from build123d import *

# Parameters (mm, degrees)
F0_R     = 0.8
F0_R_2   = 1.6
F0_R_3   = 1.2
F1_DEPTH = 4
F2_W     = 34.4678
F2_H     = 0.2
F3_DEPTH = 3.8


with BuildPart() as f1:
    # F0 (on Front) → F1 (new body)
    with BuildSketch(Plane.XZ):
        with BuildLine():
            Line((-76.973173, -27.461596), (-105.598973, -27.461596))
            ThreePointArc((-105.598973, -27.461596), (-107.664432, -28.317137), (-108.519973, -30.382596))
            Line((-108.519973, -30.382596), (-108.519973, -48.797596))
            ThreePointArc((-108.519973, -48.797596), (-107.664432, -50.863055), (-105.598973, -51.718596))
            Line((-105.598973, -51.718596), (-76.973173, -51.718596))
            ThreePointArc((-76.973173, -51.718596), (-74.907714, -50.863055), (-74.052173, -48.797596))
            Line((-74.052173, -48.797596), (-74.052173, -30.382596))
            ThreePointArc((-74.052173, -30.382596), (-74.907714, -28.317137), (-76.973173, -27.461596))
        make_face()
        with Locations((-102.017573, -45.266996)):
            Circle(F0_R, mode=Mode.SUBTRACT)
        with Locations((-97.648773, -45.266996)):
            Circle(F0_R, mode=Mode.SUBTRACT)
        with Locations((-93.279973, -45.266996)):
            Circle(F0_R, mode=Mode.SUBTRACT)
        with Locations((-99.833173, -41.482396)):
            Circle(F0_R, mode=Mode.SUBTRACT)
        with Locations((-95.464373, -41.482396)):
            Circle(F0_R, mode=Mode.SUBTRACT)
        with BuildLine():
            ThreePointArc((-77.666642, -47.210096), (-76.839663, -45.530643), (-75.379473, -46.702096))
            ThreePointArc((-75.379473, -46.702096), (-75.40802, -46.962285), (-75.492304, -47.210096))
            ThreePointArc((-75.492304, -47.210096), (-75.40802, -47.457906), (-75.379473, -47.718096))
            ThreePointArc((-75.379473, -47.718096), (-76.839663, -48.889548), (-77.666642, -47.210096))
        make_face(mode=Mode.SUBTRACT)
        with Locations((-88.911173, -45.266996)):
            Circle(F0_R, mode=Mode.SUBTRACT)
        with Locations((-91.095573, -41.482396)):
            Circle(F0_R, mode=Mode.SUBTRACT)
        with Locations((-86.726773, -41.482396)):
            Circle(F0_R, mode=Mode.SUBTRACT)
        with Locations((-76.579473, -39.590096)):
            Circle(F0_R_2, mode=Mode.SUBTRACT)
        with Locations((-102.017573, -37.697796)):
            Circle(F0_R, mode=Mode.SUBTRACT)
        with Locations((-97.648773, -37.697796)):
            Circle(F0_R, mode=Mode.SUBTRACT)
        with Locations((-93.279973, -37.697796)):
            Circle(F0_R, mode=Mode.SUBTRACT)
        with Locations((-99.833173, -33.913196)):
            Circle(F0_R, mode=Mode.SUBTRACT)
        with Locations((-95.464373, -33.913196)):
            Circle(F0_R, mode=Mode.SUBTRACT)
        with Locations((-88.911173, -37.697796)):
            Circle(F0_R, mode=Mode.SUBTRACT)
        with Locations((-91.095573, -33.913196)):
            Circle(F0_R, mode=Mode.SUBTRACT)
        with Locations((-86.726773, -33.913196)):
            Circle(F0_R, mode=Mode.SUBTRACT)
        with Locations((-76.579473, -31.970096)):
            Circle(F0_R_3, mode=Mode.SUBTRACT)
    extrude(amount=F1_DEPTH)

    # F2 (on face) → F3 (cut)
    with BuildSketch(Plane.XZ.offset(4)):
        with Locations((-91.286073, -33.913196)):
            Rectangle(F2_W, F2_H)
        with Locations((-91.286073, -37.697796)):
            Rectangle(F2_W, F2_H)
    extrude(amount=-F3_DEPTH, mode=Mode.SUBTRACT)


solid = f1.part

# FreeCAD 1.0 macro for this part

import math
import FreeCAD as App
import Part
import Sketcher
Q = App.Units.Quantity


def add_polygon(sketch, points):
    """Adds a closed chain of lines whose ends are joined by coincident constraints."""
    first, n = sketch.GeometryCount, len(points)
    for a, b in zip(points, points[1:] + points[:1]):
        sketch.addGeometry(Part.LineSegment(App.Vector(*a, 0), App.Vector(*b, 0)), False)
    for i in range(n):
        sketch.addConstraint(Sketcher.Constraint("Coincident", first + i, 2, first + (i + 1) % n, 1))

doc = App.newDocument("Part")
params = doc.addObject("Spreadsheet::Sheet", "Params")
for row, (alias, value) in enumerate([
    ("sketch1_diameter", "1.6 mm"),
    ("sketch1_diameter2", "3.2 mm"),
    ("sketch1_diameter3", "2.4 mm"),
    ("pad1_length", "4 mm"),
    ("sketch2_height", "0.2 mm"),
    ("pocket1_length", "3.8 mm"),
], start=1):
    params.set(f"A{row}", alias)
    params.set(f"B{row}", "=" + value)
    params.setAlias(f"B{row}", alias)

body = doc.addObject("PartDesign::Body", "Body")

# Sketch on XZ plane
sketch1 = doc.addObject("Sketcher::SketchObject", "Sketch")
body.addObject(sketch1)
sketch1.AttachmentSupport = (doc.XZ_Plane, [""])
sketch1.MapMode = "FlatFace"
sketch1.addGeometry([
    Part.LineSegment(App.Vector(-76.973173, -27.461596, 0), App.Vector(-105.598973, -27.461596, 0)),  # 0
    Part.ArcOfCircle(Part.Circle(App.Vector(-105.598973, -30.382596, 0), App.Vector(0, 0, 1), 2.921), math.radians(89.999994), math.radians(180.000006)),  # 1
    Part.LineSegment(App.Vector(-108.519973, -30.382596, 0), App.Vector(-108.519973, -48.797596, 0)),  # 2
    Part.ArcOfCircle(Part.Circle(App.Vector(-105.598973, -48.797596, 0), App.Vector(0, 0, 1), 2.921), math.radians(179.999994), math.radians(270.000006)),  # 3
    Part.LineSegment(App.Vector(-105.598973, -51.718596, 0), App.Vector(-76.973173, -51.718596, 0)),  # 4
    Part.ArcOfCircle(Part.Circle(App.Vector(-76.973173, -48.797596, 0), App.Vector(0, 0, 1), 2.921), math.radians(-90.000006), math.radians(0.000006)),  # 5
    Part.LineSegment(App.Vector(-74.052173, -48.797596, 0), App.Vector(-74.052173, -30.382596, 0)),  # 6
    Part.ArcOfCircle(Part.Circle(App.Vector(-76.973173, -30.382596, 0), App.Vector(0, 0, 1), 2.921), math.radians(-0.000006), math.radians(90.000006)),  # 7
    Part.Circle(App.Vector(-102.017573, -45.266996, 0), App.Vector(0, 0, 1), 0.8),  # 8
    Part.Circle(App.Vector(-97.648773, -45.266996, 0), App.Vector(0, 0, 1), 0.8),  # 9
    Part.Circle(App.Vector(-93.279973, -45.266996, 0), App.Vector(0, 0, 1), 0.8),  # 10
    Part.Circle(App.Vector(-88.911173, -45.266996, 0), App.Vector(0, 0, 1), 0.8),  # 11
    Part.Circle(App.Vector(-99.833173, -41.482396, 0), App.Vector(0, 0, 1), 0.8),  # 12
    Part.Circle(App.Vector(-95.464373, -41.482396, 0), App.Vector(0, 0, 1), 0.8),  # 13
    Part.Circle(App.Vector(-91.095573, -41.482396, 0), App.Vector(0, 0, 1), 0.8),  # 14
    Part.ArcOfCircle(Part.Circle(App.Vector(-76.579473, -47.718095, 0), App.Vector(0, 0, 1), 1.2), math.radians(154.954814), math.radians(359.999974)),  # 15
    Part.ArcOfCircle(Part.Circle(App.Vector(-76.579473, -46.702096, 0), App.Vector(0, 0, 1), 1.2), math.radians(-0.000011), math.radians(205.045223)),  # 16
    Part.ArcOfCircle(Part.Circle(App.Vector(-76.579469, -46.702097, 0), App.Vector(0, 0, 1), 1.199996), math.radians(-25.045232), math.radians(0.000061)),  # 17
    Part.ArcOfCircle(Part.Circle(App.Vector(-76.57946, -47.718093, 0), App.Vector(0, 0, 1), 1.199987), math.radians(-0.000155), math.radians(25.045327)),  # 18
    Part.Circle(App.Vector(-86.726773, -41.482396, 0), App.Vector(0, 0, 1), 0.8),  # 19
    Part.Circle(App.Vector(-102.017573, -37.697796, 0), App.Vector(0, 0, 1), 0.8),  # 20
    Part.Circle(App.Vector(-97.648773, -37.697796, 0), App.Vector(0, 0, 1), 0.8),  # 21
    Part.Circle(App.Vector(-93.279973, -37.697796, 0), App.Vector(0, 0, 1), 0.8),  # 22
    Part.Circle(App.Vector(-88.911173, -37.697796, 0), App.Vector(0, 0, 1), 0.8),  # 23
    Part.Circle(App.Vector(-99.833173, -33.913196, 0), App.Vector(0, 0, 1), 0.8),  # 24
    Part.Circle(App.Vector(-95.464373, -33.913196, 0), App.Vector(0, 0, 1), 0.8),  # 25
    Part.Circle(App.Vector(-91.095573, -33.913196, 0), App.Vector(0, 0, 1), 0.8),  # 26
    Part.Circle(App.Vector(-76.579473, -39.590096, 0), App.Vector(0, 0, 1), 1.6),  # 27
    Part.Circle(App.Vector(-86.726773, -33.913196, 0), App.Vector(0, 0, 1), 0.8),  # 28
    Part.Circle(App.Vector(-76.579473, -31.970096, 0), App.Vector(0, 0, 1), 1.2),  # 29
], False)
sketch1.addConstraint([
    Sketcher.Constraint("Tangent", 0, 2, 1, 1),
    Sketcher.Constraint("Tangent", 1, 2, 2, 1),
    Sketcher.Constraint("Tangent", 2, 2, 3, 1),
    Sketcher.Constraint("Tangent", 3, 2, 4, 1),
    Sketcher.Constraint("Tangent", 4, 2, 5, 1),
    Sketcher.Constraint("Tangent", 5, 2, 6, 1),
    Sketcher.Constraint("Tangent", 6, 2, 7, 1),
    Sketcher.Constraint("Tangent", 7, 2, 0, 1),
    Sketcher.Constraint("Coincident", 15, 1, 16, 2),
    Sketcher.Constraint("Tangent", 16, 1, 17, 2),
    Sketcher.Constraint("Coincident", 17, 1, 18, 2),
    Sketcher.Constraint("Coincident", 18, 1, 15, 2),
    Sketcher.Constraint("Horizontal", 0),
    Sketcher.Constraint("Vertical", 2),
    Sketcher.Constraint("Horizontal", 4),
    Sketcher.Constraint("Vertical", 6),
    Sketcher.Constraint("Equal", 1, 3),
    Sketcher.Constraint("Equal", 3, 5),
    Sketcher.Constraint("Equal", 5, 7),
    Sketcher.Constraint("Equal", 8, 9),
    Sketcher.Constraint("Equal", 9, 10),
    Sketcher.Constraint("Equal", 10, 11),
    Sketcher.Constraint("Equal", 11, 12),
    Sketcher.Constraint("Equal", 12, 13),
    Sketcher.Constraint("Equal", 13, 14),
    Sketcher.Constraint("Equal", 15, 16),
    Sketcher.Constraint("Equal", 14, 19),
    Sketcher.Constraint("Equal", 19, 20),
    Sketcher.Constraint("Equal", 20, 21),
    Sketcher.Constraint("Equal", 21, 22),
    Sketcher.Constraint("Equal", 22, 23),
    Sketcher.Constraint("Equal", 23, 24),
    Sketcher.Constraint("Equal", 24, 25),
    Sketcher.Constraint("Equal", 25, 26),
    Sketcher.Constraint("Equal", 26, 28),
    Sketcher.Constraint("Equal", 16, 29),
    Sketcher.Constraint("Horizontal", 8, 3, 9, 3),
    Sketcher.Constraint("Horizontal", 9, 3, 10, 3),
    Sketcher.Constraint("Horizontal", 10, 3, 11, 3),
    Sketcher.Constraint("Horizontal", 12, 3, 13, 3),
    Sketcher.Constraint("Horizontal", 13, 3, 14, 3),
    Sketcher.Constraint("Horizontal", 14, 3, 19, 3),
    Sketcher.Constraint("Horizontal", 20, 3, 21, 3),
    Sketcher.Constraint("Horizontal", 21, 3, 22, 3),
    Sketcher.Constraint("Horizontal", 22, 3, 23, 3),
    Sketcher.Constraint("Horizontal", 24, 3, 25, 3),
    Sketcher.Constraint("Horizontal", 25, 3, 26, 3),
    Sketcher.Constraint("Horizontal", 26, 3, 28, 3),
    Sketcher.Constraint("Horizontal", 17, 3, 16, 1),
    Sketcher.Constraint("Horizontal", 15, 1, 17, 1),
    Sketcher.Constraint("Horizontal", 15, 3, 18, 1),
    Sketcher.Constraint("Vertical", 15, 3, 16, 3),
    Sketcher.Constraint("Vertical", 8, 3, 20, 3),
    Sketcher.Constraint("Vertical", 9, 3, 21, 3),
    Sketcher.Constraint("Vertical", 10, 3, 22, 3),
    Sketcher.Constraint("Vertical", 11, 3, 23, 3),
    Sketcher.Constraint("Vertical", 12, 3, 24, 3),
    Sketcher.Constraint("Vertical", 13, 3, 25, 3),
    Sketcher.Constraint("Vertical", 14, 3, 26, 3),
    Sketcher.Constraint("Vertical", 16, 3, 27, 3),
    Sketcher.Constraint("Vertical", 19, 3, 28, 3),
    Sketcher.Constraint("Vertical", 27, 3, 29, 3),
    Sketcher.Constraint("Diameter", 8, Q("1.6 mm")),
    Sketcher.Constraint("Diameter", 27, Q("3.2 mm")),
    Sketcher.Constraint("Diameter", 29, Q("2.4 mm")),
    Sketcher.Constraint("Radius", 1, Q("2.921 mm")),
    Sketcher.Constraint("DistanceY", 2, 2, 2, 1, Q("18.415 mm")),
    Sketcher.Constraint("DistanceY", 27, 3, 29, 3, Q("7.62 mm")),
    Sketcher.Constraint("DistanceX", 0, 2, 0, 1, Q("28.6258 mm")),
    Sketcher.Constraint("Radius", 17, Q("1.199996 mm")),
    Sketcher.Constraint("Radius", 18, Q("1.199987 mm")),
    Sketcher.Constraint("DistanceX", 3, 3, 10, 3, Q("12.319 mm")),
    Sketcher.Constraint("DistanceX", 11, 3, 5, 3, Q("11.938 mm")),
    Sketcher.Constraint("DistanceX", 12, 3, 11, 3, Q("10.922 mm")),
    Sketcher.Constraint("DistanceY", 15, 3, 16, 3, Q("1.016 mm")),
    Sketcher.Constraint("DistanceY", 16, 3, 27, 3, Q("7.112 mm")),
    Sketcher.Constraint("DistanceX", 3, 3, 8, 3, Q("3.5814 mm")),
    Sketcher.Constraint("DistanceY", 3, 3, 8, 3, Q("3.5306 mm")),
    Sketcher.Constraint("DistanceX", 8, 3, 9, 3, Q("4.3688 mm")),
    Sketcher.Constraint("DistanceY", 8, 3, 12, 3, Q("3.7846 mm")),
    Sketcher.Constraint("DistanceX", 12, 3, 13, 3, Q("4.3688 mm")),
    Sketcher.Constraint("DistanceX", 13, 3, 14, 3, Q("4.3688 mm")),
    Sketcher.Constraint("DistanceX", 5, 3, 15, 3, Q("0.3937 mm")),
    Sketcher.Constraint("DistanceY", 5, 3, 15, 3, Q("1.079501 mm")),
    Sketcher.Constraint("DistanceX", 14, 3, 19, 3, Q("4.3688 mm")),
    Sketcher.Constraint("DistanceY", 12, 3, 20, 3, Q("3.7846 mm")),
    Sketcher.Constraint("DistanceY", 20, 3, 24, 3, Q("3.7846 mm")),
    Sketcher.Constraint("DistanceX", 17, 3, -1, 1, Q("76.579469 mm")),
    Sketcher.Constraint("DistanceY", 1, 3, -1, 1, Q("30.382596 mm")),
])
sketch1.setExpression("Constraints[62]", "Params.sketch1_diameter")
sketch1.setExpression("Constraints[63]", "Params.sketch1_diameter2")
sketch1.setExpression("Constraints[64]", "Params.sketch1_diameter3")
pad1 = doc.addObject("PartDesign::Pad", "Pad")
body.addObject(pad1)
pad1.Profile = sketch1
pad1.setExpression("Length", "Params.pad1_length")

# Sketch on XZ plane
sketch2 = doc.addObject("Sketcher::SketchObject", "Sketch001")
body.addObject(sketch2)
sketch2.AttachmentSupport = (doc.XZ_Plane, [""])
sketch2.MapMode = "FlatFace"
sketch2.AttachmentOffset = App.Placement(App.Vector(0, 0, 4), App.Rotation())
add_polygon(sketch2, [(-108.519973, -33.813196), (-108.519973, -34.013196), (-74.052173, -34.013196), (-74.052173, -33.813196)])  # lines 0-3
add_polygon(sketch2, [(-108.519973, -37.597796), (-108.519973, -37.797796), (-74.052173, -37.797796), (-74.052173, -37.597796)])  # lines 4-7
sketch2.addConstraint([
    Sketcher.Constraint("Vertical", 0),
    Sketcher.Constraint("Horizontal", 1),
    Sketcher.Constraint("Vertical", 2),
    Sketcher.Constraint("Horizontal", 3),
    Sketcher.Constraint("Vertical", 4),
    Sketcher.Constraint("Horizontal", 5),
    Sketcher.Constraint("Vertical", 6),
    Sketcher.Constraint("Horizontal", 7),
    Sketcher.Constraint("Vertical", 3, 2, 4, 2),
    Sketcher.Constraint("Vertical", 2, 2, 5, 2),
    Sketcher.Constraint("Equal", 2, 4),
    Sketcher.Constraint("DistanceY", 0, 2, 0, 1, Q("0.2 mm")),
    Sketcher.Constraint("DistanceX", 1, 1, 1, 2, Q("34.4678 mm")),
    Sketcher.Constraint("DistanceY", 4, 2, 0, 2, Q("3.7846 mm")),
    Sketcher.Constraint("DistanceX", 0, 2, -1, 1, Q("108.519973 mm")),
    Sketcher.Constraint("DistanceY", 0, 2, -1, 1, Q("34.013196 mm")),
])
sketch2.setExpression("Constraints[19]", "Params.sketch2_height")
pocket1 = doc.addObject("PartDesign::Pocket", "Pocket")
body.addObject(pocket1)
pocket1.Profile = sketch2
pocket1.setExpression("Length", "Params.pocket1_length")

doc.recompute()
